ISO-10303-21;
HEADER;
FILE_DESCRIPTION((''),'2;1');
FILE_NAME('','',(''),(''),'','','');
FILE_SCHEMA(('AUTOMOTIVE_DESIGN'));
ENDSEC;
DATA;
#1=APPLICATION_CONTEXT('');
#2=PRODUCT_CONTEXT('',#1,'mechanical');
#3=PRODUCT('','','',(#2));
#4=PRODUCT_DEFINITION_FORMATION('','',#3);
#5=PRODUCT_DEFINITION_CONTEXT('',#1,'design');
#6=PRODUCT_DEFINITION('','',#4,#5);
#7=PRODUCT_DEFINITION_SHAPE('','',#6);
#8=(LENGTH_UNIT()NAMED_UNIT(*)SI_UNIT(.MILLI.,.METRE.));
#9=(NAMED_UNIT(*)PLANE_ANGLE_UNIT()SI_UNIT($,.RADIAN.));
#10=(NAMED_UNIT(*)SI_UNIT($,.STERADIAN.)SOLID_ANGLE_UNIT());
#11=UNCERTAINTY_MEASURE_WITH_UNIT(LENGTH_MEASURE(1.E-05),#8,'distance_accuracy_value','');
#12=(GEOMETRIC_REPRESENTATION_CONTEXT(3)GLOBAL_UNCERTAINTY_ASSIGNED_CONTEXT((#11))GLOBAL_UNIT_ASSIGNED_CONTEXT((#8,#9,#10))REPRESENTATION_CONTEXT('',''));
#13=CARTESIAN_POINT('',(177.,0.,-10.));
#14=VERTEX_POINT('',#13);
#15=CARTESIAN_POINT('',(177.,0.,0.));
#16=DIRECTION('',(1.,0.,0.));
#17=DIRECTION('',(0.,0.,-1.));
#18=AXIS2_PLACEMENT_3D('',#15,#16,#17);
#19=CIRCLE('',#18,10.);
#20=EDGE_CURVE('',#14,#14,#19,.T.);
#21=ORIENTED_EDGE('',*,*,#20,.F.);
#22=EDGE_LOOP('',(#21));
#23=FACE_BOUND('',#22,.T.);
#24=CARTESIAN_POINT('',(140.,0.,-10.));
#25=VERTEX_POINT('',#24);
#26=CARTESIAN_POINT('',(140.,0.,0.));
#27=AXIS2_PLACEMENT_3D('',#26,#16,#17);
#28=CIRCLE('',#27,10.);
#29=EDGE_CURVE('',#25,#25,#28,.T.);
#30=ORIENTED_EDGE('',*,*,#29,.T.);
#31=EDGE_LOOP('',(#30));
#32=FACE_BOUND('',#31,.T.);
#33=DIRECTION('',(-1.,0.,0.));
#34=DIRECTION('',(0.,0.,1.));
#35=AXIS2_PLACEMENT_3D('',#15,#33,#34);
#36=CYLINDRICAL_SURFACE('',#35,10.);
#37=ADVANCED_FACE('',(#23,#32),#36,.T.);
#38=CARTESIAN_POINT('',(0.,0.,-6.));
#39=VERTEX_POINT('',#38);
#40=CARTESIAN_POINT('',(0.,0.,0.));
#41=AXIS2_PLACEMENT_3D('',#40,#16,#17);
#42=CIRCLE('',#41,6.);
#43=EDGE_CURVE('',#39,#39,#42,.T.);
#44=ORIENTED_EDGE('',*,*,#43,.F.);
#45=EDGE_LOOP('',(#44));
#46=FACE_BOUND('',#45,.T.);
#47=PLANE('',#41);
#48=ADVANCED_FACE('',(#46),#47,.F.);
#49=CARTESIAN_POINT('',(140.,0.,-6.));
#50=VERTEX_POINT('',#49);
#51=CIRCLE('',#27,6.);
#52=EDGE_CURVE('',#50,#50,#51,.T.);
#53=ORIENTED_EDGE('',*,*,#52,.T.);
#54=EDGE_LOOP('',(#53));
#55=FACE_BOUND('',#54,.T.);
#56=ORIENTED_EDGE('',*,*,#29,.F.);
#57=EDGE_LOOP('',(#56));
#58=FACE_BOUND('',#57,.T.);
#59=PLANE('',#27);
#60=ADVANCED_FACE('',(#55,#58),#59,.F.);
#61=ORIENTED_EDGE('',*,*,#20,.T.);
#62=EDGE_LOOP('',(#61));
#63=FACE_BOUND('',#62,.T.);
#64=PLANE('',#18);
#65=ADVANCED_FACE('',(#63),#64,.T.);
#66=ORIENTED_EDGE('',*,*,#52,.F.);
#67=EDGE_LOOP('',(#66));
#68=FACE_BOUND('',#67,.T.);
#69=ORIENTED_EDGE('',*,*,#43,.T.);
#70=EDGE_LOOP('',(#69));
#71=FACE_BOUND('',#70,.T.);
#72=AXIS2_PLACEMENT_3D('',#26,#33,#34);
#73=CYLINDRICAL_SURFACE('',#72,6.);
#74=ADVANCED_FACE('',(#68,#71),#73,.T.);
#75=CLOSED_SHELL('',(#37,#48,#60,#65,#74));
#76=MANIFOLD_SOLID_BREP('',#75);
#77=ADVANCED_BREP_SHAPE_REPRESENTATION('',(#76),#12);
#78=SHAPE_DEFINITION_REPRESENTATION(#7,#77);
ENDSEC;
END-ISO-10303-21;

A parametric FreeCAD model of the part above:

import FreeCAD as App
import Part
import Sketcher
from FreeCAD import Vector

doc = App.newDocument("Part")
body = doc.addObject("PartDesign::Body", "Body")

sketch1 = body.newObject("Sketcher::SketchObject", "Sketch")
sketch1.AttachmentSupport = (doc.getObject("YZ_Plane"), [""])
sketch1.MapMode = "FlatFace"
sketch1.addGeometry(Part.Circle(Vector(0, 0, 0), Vector(0, 0, 1), 6), False)
sketch1.addConstraint([
    Sketcher.Constraint("Coincident", 0, 3, -1, 1),
    Sketcher.Constraint("Diameter", 0, 12.0),
])
pad1 = body.newObject("PartDesign::Pad", "Pad")
pad1.Profile = sketch1
pad1.Length = 140

sketch2 = body.newObject("Sketcher::SketchObject", "Sketch001")
sketch2.AttachmentSupport = (doc.getObject("YZ_Plane"), [""])
sketch2.MapMode = "FlatFace"
sketch2.AttachmentOffset = App.Placement(Vector(0, 0, 140), App.Rotation())
sketch2.addGeometry(Part.Circle(Vector(0, 0, 0), Vector(0, 0, 1), 10), False)
sketch2.addConstraint([
    Sketcher.Constraint("Coincident", 0, 3, -1, 1),
    Sketcher.Constraint("Diameter", 0, 20.0),
])
pad2 = body.newObject("PartDesign::Pad", "Pad001")
pad2.Profile = sketch2
pad2.Length = 37

doc.recompute()
